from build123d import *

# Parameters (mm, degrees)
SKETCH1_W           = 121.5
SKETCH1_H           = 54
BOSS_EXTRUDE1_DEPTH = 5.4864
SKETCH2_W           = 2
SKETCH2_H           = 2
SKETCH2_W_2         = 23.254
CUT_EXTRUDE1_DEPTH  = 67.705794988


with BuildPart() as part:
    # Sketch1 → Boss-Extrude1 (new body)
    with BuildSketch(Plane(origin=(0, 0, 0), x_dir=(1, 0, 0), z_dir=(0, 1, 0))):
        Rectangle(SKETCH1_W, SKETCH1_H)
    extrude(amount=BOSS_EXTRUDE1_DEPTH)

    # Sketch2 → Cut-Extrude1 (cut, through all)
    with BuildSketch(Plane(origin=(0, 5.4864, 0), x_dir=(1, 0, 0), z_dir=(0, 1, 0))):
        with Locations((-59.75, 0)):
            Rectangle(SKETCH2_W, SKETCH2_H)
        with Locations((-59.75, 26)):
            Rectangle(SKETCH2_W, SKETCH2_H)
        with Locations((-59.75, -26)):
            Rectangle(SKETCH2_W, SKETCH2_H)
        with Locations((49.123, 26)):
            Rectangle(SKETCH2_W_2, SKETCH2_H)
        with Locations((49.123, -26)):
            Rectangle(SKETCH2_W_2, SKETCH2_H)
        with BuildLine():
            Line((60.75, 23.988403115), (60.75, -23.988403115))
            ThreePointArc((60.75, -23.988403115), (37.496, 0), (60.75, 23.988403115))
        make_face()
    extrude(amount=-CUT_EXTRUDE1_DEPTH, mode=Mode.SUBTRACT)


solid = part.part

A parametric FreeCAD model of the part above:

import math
import FreeCAD as App
import Part
import Sketcher

V = App.Vector
Q = App.Units.Quantity

doc = App.newDocument("Part")
body = doc.addObject("PartDesign::Body", "Body")

sketch1 = body.newObject("Sketcher::SketchObject", "Sketch")
sketch1.AttachmentSupport = (doc.getObject("XZ_Plane"), [""])
sketch1.MapMode = "FlatFace"
sketch1.addGeometry([
    Part.LineSegment(V(-61, -27, 0), V(-61, 27, 0)),
    Part.LineSegment(V(-61, 27, 0), V(61, 27, 0)),
    Part.LineSegment(V(61, 27, 0), V(61, -27, 0)),
    Part.LineSegment(V(61, -27, 0), V(-61, -27, 0)),
], False)
sketch1.addConstraint([
    Sketcher.Constraint("Coincident", 0, 2, 1, 1),
    Sketcher.Constraint("Coincident", 1, 2, 2, 1),
    Sketcher.Constraint("Coincident", 2, 2, 3, 1),
    Sketcher.Constraint("Coincident", 3, 2, 0, 1),
    Sketcher.Constraint("Vertical", 0),
    Sketcher.Constraint("Horizontal", 1),
    Sketcher.Constraint("Vertical", 2),
    Sketcher.Constraint("Horizontal", 3),
    Sketcher.Constraint("Symmetric", 0, 2, 2, 2, -1, 1),
    Sketcher.Constraint("DistanceY", 0, 1, 0, 2, Q("54 mm")),
    Sketcher.Constraint("DistanceX", 1, 1, 1, 2, Q("121.5 mm")),
])
pad1 = body.newObject("PartDesign::Pad", "Pad")
pad1.Profile = sketch1
pad1.Length = 5.4864
pad1.Reversed = True

sketch2 = body.newObject("Sketcher::SketchObject", "Sketch001")
sketch2.AttachmentSupport = (doc.getObject("XZ_Plane"), [""])
sketch2.MapMode = "FlatFace"
sketch2.AttachmentOffset = App.Placement(V(0, 0, -5.4864), App.Rotation())
sketch2.addGeometry([
    Part.LineSegment(V(-60.8, -1, 0), V(-60.8, 1, 0)),
    Part.LineSegment(V(-60.8, 1, 0), V(-58.8, 1, 0)),
    Part.LineSegment(V(-58.8, 1, 0), V(-58.8, -1, 0)),
    Part.LineSegment(V(-58.8, -1, 0), V(-60.8, -1, 0)),
    Part.LineSegment(V(-60.8, -27, 0), V(-60.8, -25, 0)),
    Part.LineSegment(V(-60.8, -25, 0), V(-58.8, -25, 0)),
    Part.LineSegment(V(-58.8, -25, 0), V(-58.8, -27, 0)),
    Part.LineSegment(V(-58.8, -27, 0), V(-60.8, -27, 0)),
    Part.LineSegment(V(-60.8, 25, 0), V(-60.8, 27, 0)),
    Part.LineSegment(V(-60.8, 27, 0), V(-58.8, 27, 0)),
    Part.LineSegment(V(-58.8, 27, 0), V(-58.8, 25, 0)),
    Part.LineSegment(V(-58.8, 25, 0), V(-60.8, 25, 0)),
    Part.LineSegment(V(37.5, -27, 0), V(37.5, -25, 0)),
    Part.LineSegment(V(37.5, -25, 0), V(60.8, -25, 0)),
    Part.LineSegment(V(60.8, -25, 0), V(60.8, -27, 0)),
    Part.LineSegment(V(60.8, -27, 0), V(37.5, -27, 0)),
    Part.LineSegment(V(37.5, 25, 0), V(37.5, 27, 0)),
    Part.LineSegment(V(37.5, 27, 0), V(60.8, 27, 0)),
    Part.LineSegment(V(60.8, 27, 0), V(60.8, 25, 0)),
    Part.LineSegment(V(60.8, 25, 0), V(37.5, 25, 0)),
    Part.LineSegment(V(60.8, 24, 0), V(60.8, -24, 0)),
    Part.ArcOfCircle(Part.Circle(V(61.5, 0, 0), V(0, 0, 1), 24), math.radians(92), math.radians(268)),
], False)
sketch2.addConstraint([
    Sketcher.Constraint("Coincident", 0, 2, 1, 1),
    Sketcher.Constraint("Coincident", 1, 2, 2, 1),
    Sketcher.Constraint("Coincident", 2, 2, 3, 1),
    Sketcher.Constraint("Coincident", 3, 2, 0, 1),
    Sketcher.Constraint("Coincident", 4, 2, 5, 1),
    Sketcher.Constraint("Coincident", 5, 2, 6, 1),
    Sketcher.Constraint("Coincident", 6, 2, 7, 1),
    Sketcher.Constraint("Coincident", 7, 2, 4, 1),
    Sketcher.Constraint("Coincident", 8, 2, 9, 1),
    Sketcher.Constraint("Coincident", 9, 2, 10, 1),
    Sketcher.Constraint("Coincident", 10, 2, 11, 1),
    Sketcher.Constraint("Coincident", 11, 2, 8, 1),
    Sketcher.Constraint("Coincident", 12, 2, 13, 1),
    Sketcher.Constraint("Coincident", 13, 2, 14, 1),
    Sketcher.Constraint("Coincident", 14, 2, 15, 1),
    Sketcher.Constraint("Coincident", 15, 2, 12, 1),
    Sketcher.Constraint("Coincident", 16, 2, 17, 1),
    Sketcher.Constraint("Coincident", 17, 2, 18, 1),
    Sketcher.Constraint("Coincident", 18, 2, 19, 1),
    Sketcher.Constraint("Coincident", 19, 2, 16, 1),
    Sketcher.Constraint("Coincident", 20, 1, 21, 1),
    Sketcher.Constraint("Coincident", 21, 2, 20, 2),
    Sketcher.Constraint("Vertical", 0),
    Sketcher.Constraint("Horizontal", 1),
    Sketcher.Constraint("Vertical", 2),
    Sketcher.Constraint("Horizontal", 3),
    Sketcher.Constraint("Vertical", 4),
    Sketcher.Constraint("Horizontal", 5),
    Sketcher.Constraint("Vertical", 6),
    Sketcher.Constraint("Horizontal", 7),
    Sketcher.Constraint("Vertical", 8),
    Sketcher.Constraint("Horizontal", 9),
    Sketcher.Constraint("Vertical", 10),
    Sketcher.Constraint("Horizontal", 11),
    Sketcher.Constraint("Vertical", 12),
    Sketcher.Constraint("Horizontal", 13),
    Sketcher.Constraint("Vertical", 14),
    Sketcher.Constraint("Horizontal", 15),
    Sketcher.Constraint("Vertical", 16),
    Sketcher.Constraint("Horizontal", 17),
    Sketcher.Constraint("Vertical", 18),
    Sketcher.Constraint("Horizontal", 19),
    Sketcher.Constraint("Vertical", 20),
    Sketcher.Constraint("Symmetric", 11, 2, 13, 2, -1, 1),
    Sketcher.Constraint("Symmetric", 7, 2, 17, 2, -1, 1),
    Sketcher.Constraint("Symmetric", 4, 2, 13, 2, -2),
    Sketcher.Constraint("Symmetric", 6, 2, 9, 2, -1),
    Sketcher.Constraint("Symmetric", 15, 2, 16, 2, -1),
    Sketcher.Constraint("PointOnObject", 21, 3, -1),
    Sketcher.Constraint("Horizontal", 11, 2, 18, 2),
    Sketcher.Constraint("Vertical", 3, 2, 4, 2),
    Sketcher.Constraint("Vertical", 2, 2, 5, 2),
    Sketcher.Constraint("Vertical", 18, 2, 20, 1),
    Sketcher.Constraint("Equal", 11, 0),
    Sketcher.Constraint("Equal", 2, 4),
    Sketcher.Constraint("Radius", 21, Q("24 mm")),
    Sketcher.Constraint("DistanceX", 1, 1, 1, 2, Q("2 mm")),
    Sketcher.Constraint("DistanceY", -1, 1, 0, 2, Q("1 mm")),
    Sketcher.Constraint("DistanceY", 4, 2, -1, 1, Q("25 mm")),
    Sketcher.Constraint("DistanceX", 12, 2, 21, 3, Q("24 mm")),
    Sketcher.Constraint("DistanceX", 5, 2, 13, 2, Q("119.5 mm")),
    Sketcher.Constraint("DistanceX", 13, 1, 13, 2, Q("23.254 mm")),
])
pocket1 = body.newObject("PartDesign::Pocket", "Pocket")
pocket1.Profile = sketch2
pocket1.Type = "ThroughAll"
pocket1.Reversed = True

doc.recompute()
